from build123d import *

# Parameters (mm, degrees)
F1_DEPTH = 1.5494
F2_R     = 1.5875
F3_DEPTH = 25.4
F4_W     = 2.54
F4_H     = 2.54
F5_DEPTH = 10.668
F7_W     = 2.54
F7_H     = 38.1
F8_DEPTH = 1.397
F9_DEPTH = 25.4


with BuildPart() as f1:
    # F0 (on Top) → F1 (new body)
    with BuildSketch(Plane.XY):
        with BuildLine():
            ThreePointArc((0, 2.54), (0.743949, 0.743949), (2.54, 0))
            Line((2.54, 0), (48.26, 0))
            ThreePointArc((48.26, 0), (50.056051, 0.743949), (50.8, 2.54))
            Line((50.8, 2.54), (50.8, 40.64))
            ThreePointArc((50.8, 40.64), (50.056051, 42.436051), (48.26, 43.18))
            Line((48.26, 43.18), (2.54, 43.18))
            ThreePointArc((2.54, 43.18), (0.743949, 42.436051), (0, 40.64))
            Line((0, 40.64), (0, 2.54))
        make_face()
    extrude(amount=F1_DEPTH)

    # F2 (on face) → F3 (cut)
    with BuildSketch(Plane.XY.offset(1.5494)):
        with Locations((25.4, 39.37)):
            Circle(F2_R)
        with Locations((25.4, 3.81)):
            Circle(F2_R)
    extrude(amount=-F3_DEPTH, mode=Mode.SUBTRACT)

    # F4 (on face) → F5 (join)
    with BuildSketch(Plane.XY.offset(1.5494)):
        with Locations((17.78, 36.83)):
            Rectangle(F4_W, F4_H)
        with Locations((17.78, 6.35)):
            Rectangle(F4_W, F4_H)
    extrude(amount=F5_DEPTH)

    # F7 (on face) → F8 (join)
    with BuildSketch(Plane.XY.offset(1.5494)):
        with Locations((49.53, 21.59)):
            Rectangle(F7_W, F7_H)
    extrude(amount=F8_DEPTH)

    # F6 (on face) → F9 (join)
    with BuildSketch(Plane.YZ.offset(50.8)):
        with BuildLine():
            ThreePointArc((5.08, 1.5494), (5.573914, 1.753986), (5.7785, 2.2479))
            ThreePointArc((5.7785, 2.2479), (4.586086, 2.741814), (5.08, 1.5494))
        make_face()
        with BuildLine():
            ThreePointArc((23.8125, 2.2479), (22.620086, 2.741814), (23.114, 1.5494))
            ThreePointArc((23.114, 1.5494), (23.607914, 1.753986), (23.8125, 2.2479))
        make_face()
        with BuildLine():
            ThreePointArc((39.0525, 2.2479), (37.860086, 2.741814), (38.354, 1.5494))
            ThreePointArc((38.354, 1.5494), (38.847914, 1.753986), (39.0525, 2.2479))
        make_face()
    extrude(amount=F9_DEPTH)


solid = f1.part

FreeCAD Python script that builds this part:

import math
import FreeCAD as App
import Part
import Sketcher
Q = App.Units.Quantity


def add_polygon(sketch, points):
    """Adds a closed chain of lines whose ends are joined by coincident constraints."""
    first, n = sketch.GeometryCount, len(points)
    for a, b in zip(points, points[1:] + points[:1]):
        sketch.addGeometry(Part.LineSegment(App.Vector(*a, 0), App.Vector(*b, 0)), False)
    for i in range(n):
        sketch.addConstraint(Sketcher.Constraint("Coincident", first + i, 2, first + (i + 1) % n, 1))

doc = App.newDocument("Part")
body = doc.addObject("PartDesign::Body", "Body")

# Sketch on XY plane
sketch1 = doc.addObject("Sketcher::SketchObject", "Sketch")
body.addObject(sketch1)
sketch1.AttachmentSupport = (doc.XY_Plane, [""])
sketch1.MapMode = "FlatFace"
sketch1.addGeometry([
    Part.ArcOfCircle(Part.Circle(App.Vector(2.5, 2.5, 0), App.Vector(0, 0, 1), 2.5), math.radians(-180), math.radians(-90)),  # 0
    Part.LineSegment(App.Vector(2.5, 0, 0), App.Vector(48.3, 0, 0)),  # 1
    Part.ArcOfCircle(Part.Circle(App.Vector(48.3, 2.5, 0), App.Vector(0, 0, 1), 2.5), math.radians(-90), math.radians(0)),  # 2
    Part.LineSegment(App.Vector(50.8, 2.5, 0), App.Vector(50.8, 40.6, 0)),  # 3
    Part.ArcOfCircle(Part.Circle(App.Vector(48.3, 40.6, 0), App.Vector(0, 0, 1), 2.5), math.radians(0), math.radians(90)),  # 4
    Part.LineSegment(App.Vector(48.3, 43.2, 0), App.Vector(2.5, 43.2, 0)),  # 5
    Part.ArcOfCircle(Part.Circle(App.Vector(2.5, 40.6, 0), App.Vector(0, 0, 1), 2.5), math.radians(90), math.radians(180)),  # 6
    Part.LineSegment(App.Vector(0, 40.6, 0), App.Vector(0, 2.5, 0)),  # 7
], False)
sketch1.addConstraint([
    Sketcher.Constraint("Tangent", 0, 2, 1, 1),
    Sketcher.Constraint("Tangent", 1, 2, 2, 1),
    Sketcher.Constraint("Tangent", 2, 2, 3, 1),
    Sketcher.Constraint("Tangent", 3, 2, 4, 1),
    Sketcher.Constraint("Tangent", 4, 2, 5, 1),
    Sketcher.Constraint("Tangent", 5, 2, 6, 1),
    Sketcher.Constraint("Tangent", 6, 2, 7, 1),
    Sketcher.Constraint("Tangent", 7, 2, 0, 1),
    Sketcher.Constraint("Horizontal", 1),
    Sketcher.Constraint("Vertical", 3),
    Sketcher.Constraint("Horizontal", 5),
    Sketcher.Constraint("Vertical", 7),
    Sketcher.Constraint("Equal", 0, 2),
    Sketcher.Constraint("Equal", 2, 4),
    Sketcher.Constraint("Equal", 4, 6),
    Sketcher.Constraint("PointOnObject", 0, 2, -1),
    Sketcher.Constraint("PointOnObject", 6, 2, -2),
    Sketcher.Constraint("Radius", 0, Q("0.1 in")),
    Sketcher.Constraint("DistanceX", 1, 1, 1, 2, Q("1.8 in")),
    Sketcher.Constraint("DistanceY", 3, 1, 3, 2, Q("1.5 in")),
])
pad1 = doc.addObject("PartDesign::Pad", "Pad")
body.addObject(pad1)
pad1.Profile = sketch1
pad1.Length = Q("0.061 in")

# Sketch on XY plane
sketch2 = doc.addObject("Sketcher::SketchObject", "Sketch001")
body.addObject(sketch2)
sketch2.AttachmentSupport = (doc.XY_Plane, [""])
sketch2.MapMode = "FlatFace"
sketch2.AttachmentOffset = App.Placement(App.Vector(0, 0, 0.061 * 25.4), App.Rotation())
sketch2.addGeometry([
    Part.Circle(App.Vector(25.4, 39.4, 0), App.Vector(0, 0, 1), 1.6),
    Part.Circle(App.Vector(25.4, 3.8, 0), App.Vector(0, 0, 1), 1.6),
], False)
sketch2.addConstraint([
    Sketcher.Constraint("Equal", 0, 1),
    Sketcher.Constraint("Vertical", 0, 3, 1, 3),
    Sketcher.Constraint("Diameter", 0, Q("0.125 in")),
    Sketcher.Constraint("DistanceX", -1, 1, 0, 3, Q("1 in")),
    Sketcher.Constraint("DistanceY", 1, 3, 0, 3, Q("1.4 in")),
    Sketcher.Constraint("DistanceY", -1, 1, 0, 3, Q("1.55 in")),
])
pocket1 = doc.addObject("PartDesign::Pocket", "Pocket")
body.addObject(pocket1)
pocket1.Profile = sketch2
pocket1.Length = Q("1 in")

# Sketch on XY plane
sketch3 = doc.addObject("Sketcher::SketchObject", "Sketch002")
body.addObject(sketch3)
sketch3.AttachmentSupport = (doc.XY_Plane, [""])
sketch3.MapMode = "FlatFace"
sketch3.AttachmentOffset = App.Placement(App.Vector(0, 0, 0.061 * 25.4), App.Rotation())
add_polygon(sketch3, [(16.5, 38.1), (16.5, 35.6), (19.1, 35.6), (19.1, 38.1)])  # lines 0-3
add_polygon(sketch3, [(16.5, 7.6), (16.5, 5.1), (19.1, 5.1), (19.1, 7.6)])  # lines 4-7
sketch3.addConstraint([
    Sketcher.Constraint("Vertical", 0),
    Sketcher.Constraint("Horizontal", 1),
    Sketcher.Constraint("Vertical", 2),
    Sketcher.Constraint("Horizontal", 3),
    Sketcher.Constraint("Vertical", 4),
    Sketcher.Constraint("Horizontal", 5),
    Sketcher.Constraint("Vertical", 6),
    Sketcher.Constraint("Horizontal", 7),
    Sketcher.Constraint("Vertical", 3, 2, 4, 2),
    Sketcher.Constraint("Vertical", 2, 2, 5, 2),
    Sketcher.Constraint("Equal", 7, 0),
    Sketcher.Constraint("Equal", 2, 4),
    Sketcher.Constraint("DistanceX", 1, 1, 1, 2, Q("0.1 in")),
    Sketcher.Constraint("DistanceY", -1, 1, 0, 2, Q("1.4 in")),
    Sketcher.Constraint("DistanceY", -1, 1, 4, 2, Q("0.2 in")),
    Sketcher.Constraint("DistanceX", -1, 1, 0, 2, Q("0.65 in")),
])
pad2 = doc.addObject("PartDesign::Pad", "Pad001")
body.addObject(pad2)
pad2.Profile = sketch3
pad2.Length = Q("0.42 in")

# Sketch on XY plane
sketch4 = doc.addObject("Sketcher::SketchObject", "Sketch003")
body.addObject(sketch4)
sketch4.AttachmentSupport = (doc.XY_Plane, [""])
sketch4.MapMode = "FlatFace"
sketch4.AttachmentOffset = App.Placement(App.Vector(0, 0, 0.061 * 25.4), App.Rotation())
add_polygon(sketch4, [(48.3, 40.6), (48.3, 2.5), (50.8, 2.5), (50.8, 40.6)])  # lines 0-3
sketch4.addConstraint([
    Sketcher.Constraint("Vertical", 0),
    Sketcher.Constraint("Horizontal", 1),
    Sketcher.Constraint("Vertical", 2),
    Sketcher.Constraint("Horizontal", 3),
    Sketcher.Constraint("DistanceX", 1, 1, 1, 2, Q("0.1 in")),
    Sketcher.Constraint("DistanceY", 0, 2, 0, 1, Q("1.5 in")),
    Sketcher.Constraint("DistanceX", -1, 1, 1, 2, Q("2 in")),
    Sketcher.Constraint("DistanceY", -1, 1, 0, 2, Q("0.1 in")),
])
pad3 = doc.addObject("PartDesign::Pad", "Pad002")
body.addObject(pad3)
pad3.Profile = sketch4
pad3.Length = Q("0.055 in")

# Sketch on YZ plane
sketch5 = doc.addObject("Sketcher::SketchObject", "Sketch004")
body.addObject(sketch5)
sketch5.AttachmentSupport = (doc.YZ_Plane, [""])
sketch5.MapMode = "FlatFace"
sketch5.AttachmentOffset = App.Placement(App.Vector(0, 0, 2 * 25.4), App.Rotation())
sketch5.addGeometry([
    Part.ArcOfCircle(Part.Circle(App.Vector(5.1, 2.2, 0), App.Vector(0, 0, 1), 0.7), math.radians(-90), math.radians(0)),  # 0
    Part.ArcOfCircle(Part.Circle(App.Vector(5.1, 2.2, 0), App.Vector(0, 0, 1), 0.7), math.radians(0), math.radians(270)),  # 1
    Part.ArcOfCircle(Part.Circle(App.Vector(23.1, 2.2, 0), App.Vector(0, 0, 1), 0.7), math.radians(0), math.radians(270)),  # 2
    Part.ArcOfCircle(Part.Circle(App.Vector(23.1, 2.2, 0), App.Vector(0, 0, 1), 0.7), math.radians(-90), math.radians(0)),  # 3
    Part.ArcOfCircle(Part.Circle(App.Vector(38.4, 2.2, 0), App.Vector(0, 0, 1), 0.7), math.radians(0), math.radians(270)),  # 4
    Part.ArcOfCircle(Part.Circle(App.Vector(38.4, 2.2, 0), App.Vector(0, 0, 1), 0.7), math.radians(-90), math.radians(0)),  # 5
], False)
sketch5.addConstraint([
    Sketcher.Constraint("Tangent", 0, 1, 1, 2),
    Sketcher.Constraint("Coincident", 1, 1, 0, 2),
    Sketcher.Constraint("Tangent", 2, 1, 3, 2),
    Sketcher.Constraint("Coincident", 3, 1, 2, 2),
    Sketcher.Constraint("Tangent", 4, 1, 5, 2),
    Sketcher.Constraint("Coincident", 5, 1, 4, 2),
    Sketcher.Constraint("Equal", 1, 2),
    Sketcher.Constraint("Equal", 3, 4),
    Sketcher.Constraint("Horizontal", 1, 3, 2, 3),
    Sketcher.Constraint("Horizontal", 3, 3, 4, 3),
    Sketcher.Constraint("Horizontal", 5, 3, 1, 1),
    Sketcher.Constraint("Horizontal", 1, 1, 2, 1),
    Sketcher.Constraint("Horizontal", 2, 1, 4, 1),
    Sketcher.Constraint("Vertical", 1, 3, 0, 1),
    Sketcher.Constraint("Vertical", 2, 3, 3, 1),
    Sketcher.Constraint("Vertical", 4, 3, 5, 1),
    Sketcher.Constraint("DistanceX", -1, 1, 0, 3, Q("0.2 in")),
    Sketcher.Constraint("Radius", 0, Q("0.0275 in")),
    Sketcher.Constraint("DistanceX", 2, 3, 4, 3, Q("0.6 in")),
    Sketcher.Constraint("DistanceX", -1, 1, 2, 3, Q("0.91 in")),
    Sketcher.Constraint("DistanceY", -1, 1, 0, 1, Q("0.061 in")),
])
pad4 = doc.addObject("PartDesign::Pad", "Pad003")
body.addObject(pad4)
pad4.Profile = sketch5
pad4.Length = Q("1 in")

doc.recompute()
